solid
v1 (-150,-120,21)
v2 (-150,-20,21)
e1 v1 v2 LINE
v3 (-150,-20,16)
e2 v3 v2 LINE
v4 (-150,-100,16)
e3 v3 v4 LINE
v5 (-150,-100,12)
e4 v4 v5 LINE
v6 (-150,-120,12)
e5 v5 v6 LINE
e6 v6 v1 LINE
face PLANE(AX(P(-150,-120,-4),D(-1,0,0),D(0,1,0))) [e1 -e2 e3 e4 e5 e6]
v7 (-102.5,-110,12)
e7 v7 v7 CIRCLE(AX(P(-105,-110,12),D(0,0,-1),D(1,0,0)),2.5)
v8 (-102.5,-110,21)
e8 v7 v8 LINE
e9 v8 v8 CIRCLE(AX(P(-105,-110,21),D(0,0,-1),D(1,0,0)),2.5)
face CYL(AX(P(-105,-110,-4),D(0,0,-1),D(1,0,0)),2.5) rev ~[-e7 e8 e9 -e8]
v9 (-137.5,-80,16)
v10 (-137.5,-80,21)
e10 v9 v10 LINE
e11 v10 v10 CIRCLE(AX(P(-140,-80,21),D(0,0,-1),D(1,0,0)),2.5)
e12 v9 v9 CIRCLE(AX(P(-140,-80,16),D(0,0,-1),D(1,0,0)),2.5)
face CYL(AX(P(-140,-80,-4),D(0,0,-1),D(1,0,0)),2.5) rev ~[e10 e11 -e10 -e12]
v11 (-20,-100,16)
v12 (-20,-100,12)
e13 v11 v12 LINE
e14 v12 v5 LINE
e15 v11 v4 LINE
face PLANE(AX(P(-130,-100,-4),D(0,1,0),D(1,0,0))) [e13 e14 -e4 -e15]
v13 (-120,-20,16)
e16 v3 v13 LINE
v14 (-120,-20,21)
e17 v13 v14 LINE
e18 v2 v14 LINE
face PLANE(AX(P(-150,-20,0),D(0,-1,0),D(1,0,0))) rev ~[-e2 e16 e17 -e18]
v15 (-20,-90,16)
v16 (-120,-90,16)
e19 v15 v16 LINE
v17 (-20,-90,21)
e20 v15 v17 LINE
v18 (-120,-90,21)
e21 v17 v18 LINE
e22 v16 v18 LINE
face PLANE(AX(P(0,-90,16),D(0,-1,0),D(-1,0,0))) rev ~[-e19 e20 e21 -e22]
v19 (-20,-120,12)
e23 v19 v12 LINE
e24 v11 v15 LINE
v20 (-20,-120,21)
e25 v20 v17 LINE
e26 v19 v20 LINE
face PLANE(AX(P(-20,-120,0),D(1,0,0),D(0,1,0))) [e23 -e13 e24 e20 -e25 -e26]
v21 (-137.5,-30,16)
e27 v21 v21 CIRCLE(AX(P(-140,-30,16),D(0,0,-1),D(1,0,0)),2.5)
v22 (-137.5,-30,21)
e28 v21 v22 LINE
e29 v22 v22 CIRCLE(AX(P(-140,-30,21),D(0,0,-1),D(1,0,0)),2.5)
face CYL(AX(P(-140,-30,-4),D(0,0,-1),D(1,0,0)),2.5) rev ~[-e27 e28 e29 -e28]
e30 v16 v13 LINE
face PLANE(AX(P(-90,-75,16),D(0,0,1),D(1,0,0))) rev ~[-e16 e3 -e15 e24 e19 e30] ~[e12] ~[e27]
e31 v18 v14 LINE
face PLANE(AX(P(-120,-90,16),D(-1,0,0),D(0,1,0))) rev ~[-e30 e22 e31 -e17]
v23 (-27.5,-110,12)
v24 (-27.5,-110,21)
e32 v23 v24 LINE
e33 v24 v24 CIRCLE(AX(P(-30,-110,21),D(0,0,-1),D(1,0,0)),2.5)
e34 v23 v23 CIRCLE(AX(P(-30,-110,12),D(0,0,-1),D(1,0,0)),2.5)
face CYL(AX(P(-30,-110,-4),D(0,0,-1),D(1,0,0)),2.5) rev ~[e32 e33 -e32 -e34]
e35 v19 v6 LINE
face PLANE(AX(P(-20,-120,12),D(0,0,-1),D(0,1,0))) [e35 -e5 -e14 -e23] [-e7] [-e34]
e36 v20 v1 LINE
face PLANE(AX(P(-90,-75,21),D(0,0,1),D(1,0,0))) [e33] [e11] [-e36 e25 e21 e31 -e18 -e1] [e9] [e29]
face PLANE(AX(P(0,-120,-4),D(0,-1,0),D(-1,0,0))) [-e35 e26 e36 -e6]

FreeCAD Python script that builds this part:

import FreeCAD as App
import Part
import Sketcher

V = App.Vector

doc = App.newDocument("Part")
body = doc.addObject("PartDesign::Body", "Body")

sketch1 = body.newObject("Sketcher::SketchObject", "Sketch")
sketch1.AttachmentSupport = (doc.getObject("XY_Plane"), [""])
sketch1.MapMode = "FlatFace"
sketch1.addGeometry(Part.BSplineCurve([V(-116.5, 0, 0), V(-116.5, -86.5, 0), V(0, -86.5, 0)], [3, 3], [3.141592654, 4.71238898], False, 2, [1, 0.707106781, 1], False), False)
sketch1.addGeometry(Part.LineSegment(V(-116.5, 0, 0), V(-130, 0, 0)), False)
sketch1.addGeometry(Part.LineSegment(V(-130, 0, 0), V(-130, -100, 0)), False)
sketch1.addGeometry(Part.LineSegment(V(-130, -100, 0), V(0, -100, 0)), False)
sketch1.addGeometry(Part.LineSegment(V(0, -100, 0), V(0, -86.5, 0)), False)
sketch1.addConstraint(Sketcher.Constraint("Block", 0))
sketch1.addConstraint(Sketcher.Constraint("Coincident", 0, 1, 1, 1))
sketch1.addConstraint(Sketcher.Constraint("Coincident", 1, 2, 2, 1))
sketch1.addConstraint(Sketcher.Constraint("Coincident", 2, 2, 3, 1))
sketch1.addConstraint(Sketcher.Constraint("Coincident", 3, 2, 4, 1))
sketch1.addConstraint(Sketcher.Constraint("Coincident", 4, 2, 0, 2))
sketch1.addConstraint(Sketcher.Constraint("Horizontal", 1))
sketch1.addConstraint(Sketcher.Constraint("Vertical", 2))
sketch1.addConstraint(Sketcher.Constraint("Horizontal", 3))
sketch1.addConstraint(Sketcher.Constraint("Vertical", 4))
sketch1.addConstraint(Sketcher.Constraint("Equal", 1, 4))
sketch1.addConstraint(Sketcher.Constraint("DistanceX", 3, 1, 3, 2, 130.0))
pad1 = body.newObject("PartDesign::Pad", "Pad")
pad1.Profile = sketch1
pad1.Length = 12

sketch2 = body.newObject("Sketcher::SketchObject", "Sketch001")
sketch2.AttachmentSupport = (doc.getObject("XZ_Plane"), [""])
sketch2.MapMode = "FlatFace"
sketch2.AttachmentOffset = App.Placement(V(0, 0, 100), App.Rotation())
sketch2.addGeometry(Part.LineSegment(V(-130, 16, 0), V(-130, -4, 0)), False)
sketch2.addGeometry(Part.LineSegment(V(-130, -4, 0), V(0, -4, 0)), False)
sketch2.addGeometry(Part.LineSegment(V(0, -4, 0), V(0, 16, 0)), False)
sketch2.addGeometry(Part.LineSegment(V(0, 16, 0), V(-130, 16, 0)), False)
sketch2.addConstraint(Sketcher.Constraint("Coincident", 0, 2, 1, 1))
sketch2.addConstraint(Sketcher.Constraint("Coincident", 1, 2, 2, 1))
sketch2.addConstraint(Sketcher.Constraint("Coincident", 2, 2, 3, 1))
sketch2.addConstraint(Sketcher.Constraint("Coincident", 3, 2, 0, 1))
sketch2.addConstraint(Sketcher.Constraint("Vertical", 0))
sketch2.addConstraint(Sketcher.Constraint("Horizontal", 1))
sketch2.addConstraint(Sketcher.Constraint("Vertical", 2))
sketch2.addConstraint(Sketcher.Constraint("Horizontal", 3))
sketch2.addConstraint(Sketcher.Constraint("PointOnObject", 1, 2, -2))
sketch2.addConstraint(Sketcher.Constraint("DistanceX", 1, 1, 1, 2, 130.0))
sketch2.addConstraint(Sketcher.Constraint("DistanceY", 0, 2, 0, 1, 20.0))
sketch2.addConstraint(Sketcher.Constraint("DistanceY", 0, 2, -1, 1, 4.0))
pad2 = body.newObject("PartDesign::Pad", "Pad001")
pad2.Profile = sketch2
pad2.Length = 5

sketch3 = body.newObject("Sketcher::SketchObject", "Sketch002")
sketch3.AttachmentSupport = (doc.getObject("YZ_Plane"), [""])
sketch3.MapMode = "FlatFace"
sketch3.AttachmentOffset = App.Placement(V(0, 0, -130), App.Rotation())
sketch3.addGeometry(Part.LineSegment(V(0, 16, 0), V(0, -4, 0)), False)
sketch3.addGeometry(Part.LineSegment(V(0, -4, 0), V(-105, -4, 0)), False)
sketch3.addGeometry(Part.LineSegment(V(-105, -4, 0), V(-105, 16, 0)), False)
sketch3.addGeometry(Part.LineSegment(V(-105, 16, 0), V(0, 16, 0)), False)
sketch3.addConstraint(Sketcher.Constraint("Coincident", 0, 2, 1, 1))
sketch3.addConstraint(Sketcher.Constraint("Coincident", 1, 2, 2, 1))
sketch3.addConstraint(Sketcher.Constraint("Coincident", 2, 2, 3, 1))
sketch3.addConstraint(Sketcher.Constraint("Coincident", 3, 2, 0, 1))
sketch3.addConstraint(Sketcher.Constraint("Vertical", 0))
sketch3.addConstraint(Sketcher.Constraint("Horizontal", 1))
sketch3.addConstraint(Sketcher.Constraint("Vertical", 2))
sketch3.addConstraint(Sketcher.Constraint("Horizontal", 3))
sketch3.addConstraint(Sketcher.Constraint("PointOnObject", 0, 2, -2))
sketch3.addConstraint(Sketcher.Constraint("DistanceX", 1, 2, 1, 1, 105.0))
sketch3.addConstraint(Sketcher.Constraint("DistanceY", 0, 2, 0, 1, 20.0))
sketch3.addConstraint(Sketcher.Constraint("DistanceY", 0, 2, -1, 1, 4.0))
pad3 = body.newObject("PartDesign::Pad", "Pad002")
pad3.Profile = sketch3
pad3.Length = 5
pad3.Reversed = True

sketch4 = body.newObject("Sketcher::SketchObject", "Sketch003")
sketch4.AttachmentSupport = (doc.getObject("XY_Plane"), [""])
sketch4.MapMode = "FlatFace"
sketch4.AttachmentOffset = App.Placement(V(0, 0, -4), App.Rotation())
sketch4.addGeometry(Part.LineSegment(V(-150, 0, 0), V(-130, 0, 0)), False)
sketch4.addGeometry(Part.LineSegment(V(-130, 0, 0), V(-130, -100, 0)), False)
sketch4.addGeometry(Part.LineSegment(V(-130, -100, 0), V(0, -100, 0)), False)
sketch4.addGeometry(Part.LineSegment(V(0, -100, 0), V(0, -120, 0)), False)
sketch4.addGeometry(Part.LineSegment(V(0, -120, 0), V(-150, -120, 0)), False)
sketch4.addGeometry(Part.LineSegment(V(-150, -120, 0), V(-150, 0, 0)), False)
sketch4.addGeometry(Part.Circle(V(-140, -30, 0), V(0, 0, 1), 2.5), False)
sketch4.addGeometry(Part.Circle(V(-140, -80, 0), V(0, 0, 1), 2.5), False)
sketch4.addGeometry(Part.Circle(V(-105, -110, 0), V(0, 0, 1), 2.5), False)
sketch4.addGeometry(Part.Circle(V(-30, -110, 0), V(0, 0, 1), 2.5), False)
sketch4.addConstraint(Sketcher.Constraint("Coincident", 0, 2, 1, 1))
sketch4.addConstraint(Sketcher.Constraint("Coincident", 1, 2, 2, 1))
sketch4.addConstraint(Sketcher.Constraint("Coincident", 2, 2, 3, 1))
sketch4.addConstraint(Sketcher.Constraint("Coincident", 3, 2, 4, 1))
sketch4.addConstraint(Sketcher.Constraint("Coincident", 4, 2, 5, 1))
sketch4.addConstraint(Sketcher.Constraint("Coincident", 5, 2, 0, 1))
sketch4.addConstraint(Sketcher.Constraint("Horizontal", 0))
sketch4.addConstraint(Sketcher.Constraint("Vertical", 1))
sketch4.addConstraint(Sketcher.Constraint("Horizontal", 2))
sketch4.addConstraint(Sketcher.Constraint("Vertical", 3))
sketch4.addConstraint(Sketcher.Constraint("Horizontal", 4))
sketch4.addConstraint(Sketcher.Constraint("Vertical", 5))
sketch4.addConstraint(Sketcher.Constraint("Equal", 6, 7))
sketch4.addConstraint(Sketcher.Constraint("Equal", 7, 8))
sketch4.addConstraint(Sketcher.Constraint("Equal", 8, 9))
sketch4.addConstraint(Sketcher.Constraint("PointOnObject", 0, 2, -1))
sketch4.addConstraint(Sketcher.Constraint("PointOnObject", 2, 2, -2))
sketch4.addConstraint(Sketcher.Constraint("Horizontal", 8, 3, 9, 3))
sketch4.addConstraint(Sketcher.Constraint("Vertical", 6, 3, 7, 3))
sketch4.addConstraint(Sketcher.Constraint("Equal", 0, 3))
sketch4.addConstraint(Sketcher.Constraint("Diameter", 6, 5.0))
sketch4.addConstraint(Sketcher.Constraint("DistanceX", 0, 1, 0, 2, 20.0))
sketch4.addConstraint(Sketcher.Constraint("DistanceX", 2, 1, 2, 2, 130.0))
sketch4.addConstraint(Sketcher.Constraint("DistanceY", 1, 2, 1, 1, 100.0))
sketch4.addConstraint(Sketcher.Constraint("DistanceX", 6, 3, -1, 1, 140.0))
sketch4.addConstraint(Sketcher.Constraint("DistanceY", 6, 3, -1, 1, 30.0))
sketch4.addConstraint(Sketcher.Constraint("DistanceY", 7, 3, -1, 1, 80.0))
sketch4.addConstraint(Sketcher.Constraint("DistanceX", 8, 3, -1, 1, 105.0))
sketch4.addConstraint(Sketcher.Constraint("DistanceY", 8, 3, -1, 1, 110.0))
sketch4.addConstraint(Sketcher.Constraint("DistanceX", 9, 3, -1, 1, 30.0))
pad4 = body.newObject("PartDesign::Pad", "Pad003")
pad4.Profile = sketch4
pad4.Length = 25

sketch5 = body.newObject("Sketcher::SketchObject", "Sketch004")
sketch5.AttachmentSupport = (doc.getObject("XY_Plane"), [""])
sketch5.MapMode = "FlatFace"
sketch5.AttachmentOffset = App.Placement(V(0, 0, 16), App.Rotation())
sketch5.addGeometry(Part.LineSegment(V(-120, 0, 0), V(-135, 0, 0)), False)
sketch5.addGeometry(Part.LineSegment(V(-135, 0, 0), V(-135, -105, 0)), False)
sketch5.addGeometry(Part.LineSegment(V(-135, -105, 0), V(0, -105, 0)), False)
sketch5.addGeometry(Part.LineSegment(V(0, -105, 0), V(0, -90, 0)), False)
sketch5.addGeometry(Part.LineSegment(V(0, -90, 0), V(-120, -90, 0)), False)
sketch5.addGeometry(Part.LineSegment(V(-120, -90, 0), V(-120, 0, 0)), False)
sketch5.addConstraint(Sketcher.Constraint("Coincident", 0, 2, 1, 1))
sketch5.addConstraint(Sketcher.Constraint("Coincident", 1, 2, 2, 1))
sketch5.addConstraint(Sketcher.Constraint("Coincident", 2, 2, 3, 1))
sketch5.addConstraint(Sketcher.Constraint("Coincident", 3, 2, 4, 1))
sketch5.addConstraint(Sketcher.Constraint("Coincident", 4, 2, 5, 1))
sketch5.addConstraint(Sketcher.Constraint("Coincident", 5, 2, 0, 1))
sketch5.addConstraint(Sketcher.Constraint("Horizontal", 0))
sketch5.addConstraint(Sketcher.Constraint("Vertical", 1))
sketch5.addConstraint(Sketcher.Constraint("Horizontal", 2))
sketch5.addConstraint(Sketcher.Constraint("Vertical", 3))
sketch5.addConstraint(Sketcher.Constraint("Horizontal", 4))
sketch5.addConstraint(Sketcher.Constraint("Vertical", 5))
sketch5.addConstraint(Sketcher.Constraint("PointOnObject", 0, 2, -1))
sketch5.addConstraint(Sketcher.Constraint("PointOnObject", 2, 2, -2))
sketch5.addConstraint(Sketcher.Constraint("Equal", 0, 3))
sketch5.addConstraint(Sketcher.Constraint("DistanceX", 0, 2, 0, 1, 15.0))
sketch5.addConstraint(Sketcher.Constraint("DistanceX", 2, 1, 2, 2, 135.0))
sketch5.addConstraint(Sketcher.Constraint("DistanceY", 1, 2, 1, 1, 105.0))
pad5 = body.newObject("PartDesign::Pad", "Pad004")
pad5.Profile = sketch5
pad5.Length = 5

sketch6 = body.newObject("Sketcher::SketchObject", "Sketch005")
sketch6.AttachmentSupport = (doc.getObject("XY_Plane"), [""])
sketch6.MapMode = "FlatFace"
sketch6.addGeometry(Part.LineSegment(V(-150, 0, 0), V(-150, -20, 0)), False)
sketch6.addGeometry(Part.LineSegment(V(-150, -20, 0), V(-20, -20, 0)), False)
sketch6.addGeometry(Part.LineSegment(V(-20, -20, 0), V(-20, -120, 0)), False)
sketch6.addGeometry(Part.LineSegment(V(-20, -120, 0), V(0, -120, 0)), False)
sketch6.addGeometry(Part.LineSegment(V(0, -120, 0), V(0, 0, 0)), False)
sketch6.addGeometry(Part.LineSegment(V(0, 0, 0), V(-150, 0, 0)), False)
sketch6.addConstraint(Sketcher.Constraint("Coincident", 0, 2, 1, 1))
sketch6.addConstraint(Sketcher.Constraint("Coincident", 1, 2, 2, 1))
sketch6.addConstraint(Sketcher.Constraint("Coincident", 2, 2, 3, 1))
sketch6.addConstraint(Sketcher.Constraint("Coincident", 3, 2, 4, 1))
sketch6.addConstraint(Sketcher.Constraint("Coincident", 4, 2, 5, 1))
sketch6.addConstraint(Sketcher.Constraint("Coincident", 5, 2, 0, 1))
sketch6.addConstraint(Sketcher.Constraint("Vertical", 0))
sketch6.addConstraint(Sketcher.Constraint("Horizontal", 1))
sketch6.addConstraint(Sketcher.Constraint("Vertical", 2))
sketch6.addConstraint(Sketcher.Constraint("Horizontal", 3))
sketch6.addConstraint(Sketcher.Constraint("Vertical", 4))
sketch6.addConstraint(Sketcher.Constraint("Horizontal", 5))
sketch6.addConstraint(Sketcher.Constraint("Coincident", 4, 2, -1, 1))
sketch6.addConstraint(Sketcher.Constraint("Equal", 3, 0))
sketch6.addConstraint(Sketcher.Constraint("DistanceX", 1, 1, 1, 2, 130.0))
sketch6.addConstraint(Sketcher.Constraint("DistanceX", 3, 1, 3, 2, 20.0))
sketch6.addConstraint(Sketcher.Constraint("DistanceY", 2, 2, 2, 1, 100.0))
pocket1 = body.newObject("PartDesign::Pocket", "Pocket")
pocket1.Profile = sketch6
pocket1.Length = 50
pocket1.Midplane = True

sketch7 = body.newObject("Sketcher::SketchObject", "Sketch006")
sketch7.AttachmentSupport = (doc.getObject("YZ_Plane"), [""])
sketch7.MapMode = "FlatFace"
sketch7.AttachmentOffset = App.Placement(V(0, 0, -20), App.Rotation())
sketch7.addGeometry(Part.LineSegment(V(-120, 12, 0), V(-120, -4, 0)), False)
sketch7.addGeometry(Part.LineSegment(V(-120, -4, 0), V(-20, -4, 0)), False)
sketch7.addGeometry(Part.LineSegment(V(-20, -4, 0), V(-20, 12, 0)), False)
sketch7.addGeometry(Part.LineSegment(V(-20, 12, 0), V(-120, 12, 0)), False)
sketch7.addConstraint(Sketcher.Constraint("Coincident", 0, 2, 1, 1))
sketch7.addConstraint(Sketcher.Constraint("Coincident", 1, 2, 2, 1))
sketch7.addConstraint(Sketcher.Constraint("Coincident", 2, 2, 3, 1))
sketch7.addConstraint(Sketcher.Constraint("Coincident", 3, 2, 0, 1))
sketch7.addConstraint(Sketcher.Constraint("Vertical", 0))
sketch7.addConstraint(Sketcher.Constraint("Horizontal", 1))
sketch7.addConstraint(Sketcher.Constraint("Vertical", 2))
sketch7.addConstraint(Sketcher.Constraint("Horizontal", 3))
sketch7.addConstraint(Sketcher.Constraint("DistanceX", 1, 1, 1, 2, 100.0))
sketch7.addConstraint(Sketcher.Constraint("DistanceY", 0, 2, 0, 1, 16.0))
sketch7.addConstraint(Sketcher.Constraint("DistanceX", 0, 2, -1, 1, 120.0))
sketch7.addConstraint(Sketcher.Constraint("DistanceY", 0, 2, -1, 1, 4.0))
pocket2 = body.newObject("PartDesign::Pocket", "Pocket001")
pocket2.Profile = sketch7
pocket2.Length = 150

sketch8 = body.newObject("Sketcher::SketchObject", "Sketch007")
sketch8.AttachmentSupport = (doc.getObject("YZ_Plane"), [""])
sketch8.MapMode = "FlatFace"
sketch8.AttachmentOffset = App.Placement(V(0, 0, -120), App.Rotation())
sketch8.addGeometry(Part.LineSegment(V(-100, 16, 0), V(-100, 12, 0)), False)
sketch8.addGeometry(Part.LineSegment(V(-100, 12, 0), V(-20, 12, 0)), False)
sketch8.addGeometry(Part.LineSegment(V(-20, 12, 0), V(-20, 16, 0)), False)
sketch8.addGeometry(Part.LineSegment(V(-20, 16, 0), V(-100, 16, 0)), False)
sketch8.addConstraint(Sketcher.Constraint("Coincident", 0, 2, 1, 1))
sketch8.addConstraint(Sketcher.Constraint("Coincident", 1, 2, 2, 1))
sketch8.addConstraint(Sketcher.Constraint("Coincident", 2, 2, 3, 1))
sketch8.addConstraint(Sketcher.Constraint("Coincident", 3, 2, 0, 1))
sketch8.addConstraint(Sketcher.Constraint("Vertical", 0))
sketch8.addConstraint(Sketcher.Constraint("Horizontal", 1))
sketch8.addConstraint(Sketcher.Constraint("Vertical", 2))
sketch8.addConstraint(Sketcher.Constraint("Horizontal", 3))
sketch8.addConstraint(Sketcher.Constraint("DistanceX", 1, 1, 1, 2, 80.0))
sketch8.addConstraint(Sketcher.Constraint("DistanceY", 0, 2, 0, 1, 4.0))
sketch8.addConstraint(Sketcher.Constraint("DistanceX", 0, 2, -1, 1, 100.0))
sketch8.addConstraint(Sketcher.Constraint("DistanceY", -1, 1, 0, 2, 12.0))
pocket3 = body.newObject("PartDesign::Pocket", "Pocket002")
pocket3.Profile = sketch8
pocket3.Type = "ThroughAll"

doc.recompute()
